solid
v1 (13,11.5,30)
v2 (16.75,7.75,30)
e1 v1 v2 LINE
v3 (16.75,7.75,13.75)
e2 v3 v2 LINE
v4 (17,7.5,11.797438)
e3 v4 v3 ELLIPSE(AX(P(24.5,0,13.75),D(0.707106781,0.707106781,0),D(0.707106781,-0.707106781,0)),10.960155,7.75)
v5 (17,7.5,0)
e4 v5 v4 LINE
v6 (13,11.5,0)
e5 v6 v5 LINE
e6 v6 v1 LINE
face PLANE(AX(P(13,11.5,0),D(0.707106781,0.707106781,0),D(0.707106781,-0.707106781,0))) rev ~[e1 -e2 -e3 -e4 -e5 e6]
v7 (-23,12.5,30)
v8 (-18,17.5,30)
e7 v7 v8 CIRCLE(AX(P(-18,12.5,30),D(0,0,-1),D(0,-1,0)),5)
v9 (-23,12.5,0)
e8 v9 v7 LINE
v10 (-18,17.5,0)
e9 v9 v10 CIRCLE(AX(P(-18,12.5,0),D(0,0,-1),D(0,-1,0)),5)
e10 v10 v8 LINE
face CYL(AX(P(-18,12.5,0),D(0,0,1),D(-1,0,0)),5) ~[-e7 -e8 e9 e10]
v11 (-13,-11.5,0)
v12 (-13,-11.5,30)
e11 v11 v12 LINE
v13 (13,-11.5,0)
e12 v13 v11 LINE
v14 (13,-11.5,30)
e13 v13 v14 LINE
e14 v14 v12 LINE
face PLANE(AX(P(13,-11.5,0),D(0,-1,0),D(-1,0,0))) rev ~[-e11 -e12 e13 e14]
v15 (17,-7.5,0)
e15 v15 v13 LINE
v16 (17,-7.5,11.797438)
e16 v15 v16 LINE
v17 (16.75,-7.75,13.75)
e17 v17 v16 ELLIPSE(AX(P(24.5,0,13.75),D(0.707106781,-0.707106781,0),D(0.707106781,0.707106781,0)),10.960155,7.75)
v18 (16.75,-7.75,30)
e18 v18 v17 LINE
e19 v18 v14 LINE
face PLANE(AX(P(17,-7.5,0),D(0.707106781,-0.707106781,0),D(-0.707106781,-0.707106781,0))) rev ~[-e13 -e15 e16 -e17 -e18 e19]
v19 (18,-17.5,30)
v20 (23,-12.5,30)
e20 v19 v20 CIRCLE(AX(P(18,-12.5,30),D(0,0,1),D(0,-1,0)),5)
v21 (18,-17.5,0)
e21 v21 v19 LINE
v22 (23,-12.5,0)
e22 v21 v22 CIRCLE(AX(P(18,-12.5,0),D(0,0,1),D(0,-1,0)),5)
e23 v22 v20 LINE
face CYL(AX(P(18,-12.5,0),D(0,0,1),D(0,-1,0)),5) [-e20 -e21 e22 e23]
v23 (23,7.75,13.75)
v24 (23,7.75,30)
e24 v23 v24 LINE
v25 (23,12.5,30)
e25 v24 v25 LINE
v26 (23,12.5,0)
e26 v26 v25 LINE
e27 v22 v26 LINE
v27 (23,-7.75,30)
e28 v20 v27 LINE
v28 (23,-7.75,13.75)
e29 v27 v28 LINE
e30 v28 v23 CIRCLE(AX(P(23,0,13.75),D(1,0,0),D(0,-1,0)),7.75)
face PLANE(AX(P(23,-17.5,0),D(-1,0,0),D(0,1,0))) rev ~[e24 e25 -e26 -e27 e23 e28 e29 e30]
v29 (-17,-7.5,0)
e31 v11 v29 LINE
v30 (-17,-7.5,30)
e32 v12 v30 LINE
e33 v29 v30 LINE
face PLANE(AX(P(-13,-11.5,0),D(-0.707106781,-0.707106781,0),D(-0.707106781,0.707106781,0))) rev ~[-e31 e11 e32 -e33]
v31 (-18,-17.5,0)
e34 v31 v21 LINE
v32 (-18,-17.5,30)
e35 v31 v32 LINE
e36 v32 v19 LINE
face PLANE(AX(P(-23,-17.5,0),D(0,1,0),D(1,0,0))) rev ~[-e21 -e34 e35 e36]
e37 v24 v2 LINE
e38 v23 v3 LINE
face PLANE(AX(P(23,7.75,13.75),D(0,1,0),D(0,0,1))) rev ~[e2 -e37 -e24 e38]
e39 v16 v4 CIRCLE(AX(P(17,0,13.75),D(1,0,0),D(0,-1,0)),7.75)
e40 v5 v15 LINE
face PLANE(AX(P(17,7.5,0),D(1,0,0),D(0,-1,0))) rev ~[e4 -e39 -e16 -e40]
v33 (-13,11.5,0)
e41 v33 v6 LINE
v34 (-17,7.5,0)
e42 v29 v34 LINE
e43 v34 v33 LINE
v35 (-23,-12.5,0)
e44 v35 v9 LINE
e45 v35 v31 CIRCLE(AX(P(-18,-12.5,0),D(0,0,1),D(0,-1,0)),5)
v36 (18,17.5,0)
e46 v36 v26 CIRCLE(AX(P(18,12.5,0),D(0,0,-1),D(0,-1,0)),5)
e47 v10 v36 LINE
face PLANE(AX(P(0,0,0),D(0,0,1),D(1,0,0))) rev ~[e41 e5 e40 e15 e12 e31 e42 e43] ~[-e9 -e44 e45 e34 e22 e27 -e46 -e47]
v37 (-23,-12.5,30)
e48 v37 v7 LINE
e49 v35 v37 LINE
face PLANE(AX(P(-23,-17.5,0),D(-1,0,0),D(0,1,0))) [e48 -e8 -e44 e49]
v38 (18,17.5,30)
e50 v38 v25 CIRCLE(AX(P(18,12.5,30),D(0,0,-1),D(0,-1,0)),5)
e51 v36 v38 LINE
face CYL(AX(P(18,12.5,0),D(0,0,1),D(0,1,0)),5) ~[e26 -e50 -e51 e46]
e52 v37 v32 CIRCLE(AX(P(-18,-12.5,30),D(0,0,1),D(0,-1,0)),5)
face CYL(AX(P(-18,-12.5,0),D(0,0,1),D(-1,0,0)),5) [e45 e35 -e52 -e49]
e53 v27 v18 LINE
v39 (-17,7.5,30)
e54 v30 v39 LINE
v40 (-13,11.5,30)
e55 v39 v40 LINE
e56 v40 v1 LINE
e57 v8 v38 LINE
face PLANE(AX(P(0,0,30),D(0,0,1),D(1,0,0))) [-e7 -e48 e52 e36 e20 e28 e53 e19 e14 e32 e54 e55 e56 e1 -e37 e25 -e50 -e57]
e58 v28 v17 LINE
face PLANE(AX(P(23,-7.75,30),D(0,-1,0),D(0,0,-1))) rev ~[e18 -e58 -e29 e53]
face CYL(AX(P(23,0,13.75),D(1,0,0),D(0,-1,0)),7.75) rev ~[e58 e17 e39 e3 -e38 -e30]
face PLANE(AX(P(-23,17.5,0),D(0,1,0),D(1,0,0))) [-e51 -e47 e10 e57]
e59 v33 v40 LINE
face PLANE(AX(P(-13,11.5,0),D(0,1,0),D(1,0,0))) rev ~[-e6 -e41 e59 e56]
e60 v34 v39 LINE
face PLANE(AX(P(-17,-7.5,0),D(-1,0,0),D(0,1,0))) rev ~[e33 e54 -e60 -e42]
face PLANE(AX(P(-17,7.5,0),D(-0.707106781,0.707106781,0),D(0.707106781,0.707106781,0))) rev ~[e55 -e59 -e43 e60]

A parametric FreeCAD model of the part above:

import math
import FreeCAD as App
import Part
import Sketcher

V = App.Vector


def edges_at(feature, points):
    """Names of the edges that pass closest to the given points."""
    edges = feature.Shape.Edges
    near = lambda p: min(range(len(edges)), key=lambda i: edges[i].distToShape(Part.Vertex(*p))[0])
    return sorted({f"Edge{near(p) + 1}" for p in points})

doc = App.newDocument("Part")
body = doc.addObject("PartDesign::Body", "Body")

# Sketch on XY plane
sketch1 = doc.addObject("Sketcher::SketchObject", "Sketch")
body.addObject(sketch1)
sketch1.AttachmentSupport = (doc.XY_Plane, [""])
sketch1.MapMode = "FlatFace"
sketch1.addGeometry([
    Part.LineSegment(V(-23, 18, 0), V(-23, -18, 0)),  # 0
    Part.LineSegment(V(-23, -18, 0), V(23, -18, 0)),  # 1
    Part.LineSegment(V(23, -18, 0), V(23, 18, 0)),  # 2
    Part.LineSegment(V(23, 18, 0), V(-23, 18, 0)),  # 3
    Part.LineSegment(V(-17, -8, 0), V(-17, 8, 0)),  # 4
    Part.LineSegment(V(-17, 8, 0), V(-13, 12, 0)),  # 5
    Part.LineSegment(V(-13, 12, 0), V(13, 12, 0)),  # 6
    Part.LineSegment(V(13, 12, 0), V(17, 8, 0)),  # 7
    Part.LineSegment(V(17, 8, 0), V(17, -8, 0)),  # 8
    Part.LineSegment(V(17, -8, 0), V(13, -12, 0)),  # 9
    Part.LineSegment(V(13, -12, 0), V(-13, -12, 0)),  # 10
    Part.LineSegment(V(-13, -12, 0), V(-17, -8, 0)),  # 11
], False)
sketch1.addConstraint([
    Sketcher.Constraint("Coincident", 0, 2, 1, 1),
    Sketcher.Constraint("Coincident", 1, 2, 2, 1),
    Sketcher.Constraint("Coincident", 2, 2, 3, 1),
    Sketcher.Constraint("Coincident", 3, 2, 0, 1),
    Sketcher.Constraint("Coincident", 4, 2, 5, 1),
    Sketcher.Constraint("Coincident", 5, 2, 6, 1),
    Sketcher.Constraint("Coincident", 6, 2, 7, 1),
    Sketcher.Constraint("Coincident", 7, 2, 8, 1),
    Sketcher.Constraint("Coincident", 8, 2, 9, 1),
    Sketcher.Constraint("Coincident", 9, 2, 10, 1),
    Sketcher.Constraint("Coincident", 10, 2, 11, 1),
    Sketcher.Constraint("Coincident", 11, 2, 4, 1),
    Sketcher.Constraint("Vertical", 0),
    Sketcher.Constraint("Horizontal", 1),
    Sketcher.Constraint("Vertical", 2),
    Sketcher.Constraint("Horizontal", 3),
    Sketcher.Constraint("Vertical", 4),
    Sketcher.Constraint("Horizontal", 6),
    Sketcher.Constraint("Vertical", 8),
    Sketcher.Constraint("Horizontal", 10),
    Sketcher.Constraint("Symmetric", 0, 2, 2, 2, -1, 1),
    Sketcher.Constraint("Symmetric", 4, 2, 8, 2, -1, 1),
    Sketcher.Constraint("Symmetric", 5, 2, 9, 2, -1, 1),
    Sketcher.Constraint("Perpendicular", 5, 7),
    Sketcher.Constraint("Perpendicular", 9, 11),
    Sketcher.Constraint("Horizontal", 4, 2, 7, 2),
    Sketcher.Constraint("Horizontal", 8, 2, 11, 2),
    Sketcher.Constraint("Vertical", 6, 2, 9, 2),
    Sketcher.Constraint("DistanceX", 1, 1, 1, 2, 46.0),
    Sketcher.Constraint("DistanceX", 6, 1, 6, 2, 26.0),
    Sketcher.Constraint("DistanceY", 0, 2, 0, 1, 35.0),
    Sketcher.Constraint("DistanceY", 4, 1, 4, 2, 15.0),
    Sketcher.Constraint("DistanceX", 4, 2, -1, 1, 17.0),
])
pad1 = doc.addObject("PartDesign::Pad", "Pad")
body.addObject(pad1)
pad1.Profile = sketch1
pad1.Length = 30

# Sketch on YZ plane
sketch2 = doc.addObject("Sketcher::SketchObject", "Sketch001")
body.addObject(sketch2)
sketch2.AttachmentSupport = (doc.YZ_Plane, [""])
sketch2.MapMode = "FlatFace"
sketch2.AttachmentOffset = App.Placement(V(0, 0, 23), App.Rotation())
sketch2.addGeometry([
    Part.LineSegment(V(-8, 30, 0), V(-8, 14, 0)),
    Part.ArcOfCircle(Part.Circle(V(0, 14, 0), V(0, 0, 1), 8), math.radians(180), math.radians(360)),
    Part.LineSegment(V(8, 14, 0), V(8, 30, 0)),
    Part.LineSegment(V(8, 30, 0), V(-8, 30, 0)),
], False)
sketch2.addConstraint([
    Sketcher.Constraint("Tangent", 0, 2, 1, 1),
    Sketcher.Constraint("Tangent", 1, 2, 2, 1),
    Sketcher.Constraint("Coincident", 2, 2, 3, 1),
    Sketcher.Constraint("Coincident", 3, 2, 0, 1),
    Sketcher.Constraint("Vertical", 0),
    Sketcher.Constraint("Vertical", 2),
    Sketcher.Constraint("Horizontal", 3),
    Sketcher.Constraint("PointOnObject", 1, 3, -2),
    Sketcher.Constraint("Radius", 1, 7.75),
    Sketcher.Constraint("DistanceY", -1, 1, 2, 2, 30.0),
    Sketcher.Constraint("DistanceY", 0, 2, 0, 1, 16.25),
])
pocket1 = doc.addObject("PartDesign::Pocket", "Pocket")
body.addObject(pocket1)
pocket1.Profile = sketch2
pocket1.Length = 6.251
doc.recompute()

fillet = doc.addObject("PartDesign::Fillet", "Fillet")
body.addObject(fillet)
fillet.Base = (pocket1, edges_at(pocket1, [
    (23, -17.5, 15),
    (23, 17.5, 15),
    (-23, 17.5, 15),
    (-23, -17.5, 15),
]))
fillet.Radius = 5

doc.recompute()
